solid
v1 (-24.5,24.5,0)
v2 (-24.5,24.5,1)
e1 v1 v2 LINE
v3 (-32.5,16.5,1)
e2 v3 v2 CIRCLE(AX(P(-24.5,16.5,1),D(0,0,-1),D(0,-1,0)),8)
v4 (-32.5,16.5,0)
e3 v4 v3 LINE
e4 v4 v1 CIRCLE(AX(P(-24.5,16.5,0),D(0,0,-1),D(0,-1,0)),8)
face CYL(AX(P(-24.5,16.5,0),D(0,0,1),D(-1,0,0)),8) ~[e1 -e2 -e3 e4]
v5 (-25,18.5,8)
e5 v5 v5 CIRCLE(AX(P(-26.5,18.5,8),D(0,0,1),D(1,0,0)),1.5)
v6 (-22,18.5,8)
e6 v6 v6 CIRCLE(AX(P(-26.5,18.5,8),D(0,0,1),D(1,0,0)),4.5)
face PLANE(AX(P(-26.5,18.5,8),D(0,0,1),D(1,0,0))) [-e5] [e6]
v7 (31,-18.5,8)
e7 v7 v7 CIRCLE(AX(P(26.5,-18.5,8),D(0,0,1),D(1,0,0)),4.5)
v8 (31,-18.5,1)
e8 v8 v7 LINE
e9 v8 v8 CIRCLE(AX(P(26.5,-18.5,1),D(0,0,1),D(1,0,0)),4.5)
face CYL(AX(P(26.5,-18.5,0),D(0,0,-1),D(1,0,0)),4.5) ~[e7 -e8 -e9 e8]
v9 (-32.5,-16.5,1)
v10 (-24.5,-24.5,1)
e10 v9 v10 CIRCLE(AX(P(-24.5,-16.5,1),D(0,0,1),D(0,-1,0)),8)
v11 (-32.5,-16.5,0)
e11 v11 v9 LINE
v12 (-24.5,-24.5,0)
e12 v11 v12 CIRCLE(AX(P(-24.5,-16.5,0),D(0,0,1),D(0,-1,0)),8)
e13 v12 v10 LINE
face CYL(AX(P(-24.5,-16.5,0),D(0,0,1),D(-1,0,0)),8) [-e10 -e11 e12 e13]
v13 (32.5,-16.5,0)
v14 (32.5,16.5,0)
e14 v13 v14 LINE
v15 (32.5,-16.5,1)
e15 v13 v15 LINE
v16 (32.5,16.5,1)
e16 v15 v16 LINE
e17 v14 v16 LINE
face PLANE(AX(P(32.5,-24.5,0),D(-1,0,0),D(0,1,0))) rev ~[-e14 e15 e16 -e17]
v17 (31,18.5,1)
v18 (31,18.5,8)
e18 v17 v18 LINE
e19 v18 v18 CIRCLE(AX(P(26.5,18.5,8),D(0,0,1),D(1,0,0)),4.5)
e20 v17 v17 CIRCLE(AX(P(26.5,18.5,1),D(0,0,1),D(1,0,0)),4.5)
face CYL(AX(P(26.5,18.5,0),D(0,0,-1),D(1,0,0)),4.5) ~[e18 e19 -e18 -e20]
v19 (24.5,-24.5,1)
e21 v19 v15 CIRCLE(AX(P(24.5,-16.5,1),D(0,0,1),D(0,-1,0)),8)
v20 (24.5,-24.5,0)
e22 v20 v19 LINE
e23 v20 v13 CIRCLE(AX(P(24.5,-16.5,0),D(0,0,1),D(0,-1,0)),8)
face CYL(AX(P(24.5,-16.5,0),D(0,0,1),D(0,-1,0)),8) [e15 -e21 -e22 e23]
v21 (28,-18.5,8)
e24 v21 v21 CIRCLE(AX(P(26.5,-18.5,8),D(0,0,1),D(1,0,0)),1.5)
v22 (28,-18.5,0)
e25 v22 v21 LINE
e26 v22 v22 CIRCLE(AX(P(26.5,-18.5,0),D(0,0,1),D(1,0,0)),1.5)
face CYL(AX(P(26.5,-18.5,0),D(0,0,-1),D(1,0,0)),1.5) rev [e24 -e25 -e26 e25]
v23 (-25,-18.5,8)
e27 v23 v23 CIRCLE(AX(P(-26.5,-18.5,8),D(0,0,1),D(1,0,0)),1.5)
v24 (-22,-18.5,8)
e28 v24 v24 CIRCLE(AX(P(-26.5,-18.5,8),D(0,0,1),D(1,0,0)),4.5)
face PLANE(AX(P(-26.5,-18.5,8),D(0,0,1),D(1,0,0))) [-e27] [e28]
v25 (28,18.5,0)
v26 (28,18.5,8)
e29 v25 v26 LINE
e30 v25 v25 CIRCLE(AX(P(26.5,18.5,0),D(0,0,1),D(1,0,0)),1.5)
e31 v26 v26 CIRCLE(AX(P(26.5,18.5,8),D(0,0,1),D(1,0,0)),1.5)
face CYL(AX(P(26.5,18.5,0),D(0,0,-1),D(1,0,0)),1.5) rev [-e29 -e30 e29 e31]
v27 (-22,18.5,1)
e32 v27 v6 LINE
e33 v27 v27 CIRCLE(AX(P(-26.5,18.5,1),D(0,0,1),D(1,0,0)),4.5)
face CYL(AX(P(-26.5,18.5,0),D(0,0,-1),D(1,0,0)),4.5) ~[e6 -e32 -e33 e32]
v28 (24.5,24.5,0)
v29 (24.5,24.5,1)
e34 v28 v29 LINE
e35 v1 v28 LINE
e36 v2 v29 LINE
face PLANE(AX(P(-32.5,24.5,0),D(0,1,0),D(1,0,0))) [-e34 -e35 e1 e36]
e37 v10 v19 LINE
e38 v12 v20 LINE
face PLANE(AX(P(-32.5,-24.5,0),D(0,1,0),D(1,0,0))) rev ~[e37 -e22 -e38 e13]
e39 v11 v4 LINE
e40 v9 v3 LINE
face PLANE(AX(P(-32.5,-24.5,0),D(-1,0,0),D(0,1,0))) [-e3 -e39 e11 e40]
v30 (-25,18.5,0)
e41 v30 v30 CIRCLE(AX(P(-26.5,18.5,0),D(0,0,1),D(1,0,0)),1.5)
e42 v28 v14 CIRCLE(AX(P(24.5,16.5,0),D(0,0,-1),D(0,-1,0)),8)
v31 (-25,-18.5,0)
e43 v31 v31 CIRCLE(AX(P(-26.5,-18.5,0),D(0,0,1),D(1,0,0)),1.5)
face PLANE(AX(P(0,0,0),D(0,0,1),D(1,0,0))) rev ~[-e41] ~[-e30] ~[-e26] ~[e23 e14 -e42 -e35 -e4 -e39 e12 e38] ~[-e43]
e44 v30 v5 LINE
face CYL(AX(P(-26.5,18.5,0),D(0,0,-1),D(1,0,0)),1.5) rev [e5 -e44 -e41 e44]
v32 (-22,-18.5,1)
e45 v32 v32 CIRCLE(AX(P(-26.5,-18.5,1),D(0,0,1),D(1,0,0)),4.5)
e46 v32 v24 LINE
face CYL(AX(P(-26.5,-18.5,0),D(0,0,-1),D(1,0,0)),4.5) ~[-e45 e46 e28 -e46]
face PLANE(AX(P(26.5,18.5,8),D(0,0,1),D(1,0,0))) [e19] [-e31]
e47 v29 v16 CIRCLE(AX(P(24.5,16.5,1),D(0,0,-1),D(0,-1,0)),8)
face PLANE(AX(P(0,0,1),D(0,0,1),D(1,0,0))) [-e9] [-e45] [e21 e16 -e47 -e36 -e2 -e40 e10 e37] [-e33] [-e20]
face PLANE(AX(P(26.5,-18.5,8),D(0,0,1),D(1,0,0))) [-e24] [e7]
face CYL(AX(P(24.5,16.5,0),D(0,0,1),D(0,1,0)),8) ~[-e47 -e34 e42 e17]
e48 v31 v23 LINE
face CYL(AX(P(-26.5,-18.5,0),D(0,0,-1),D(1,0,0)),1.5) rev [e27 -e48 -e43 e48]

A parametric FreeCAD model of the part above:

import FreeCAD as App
import Part
import Sketcher
Q = App.Units.Quantity


def edges_at(feature, points):
    """Names of the edges that pass closest to the given points."""
    edges = feature.Shape.Edges
    near = lambda p: min(range(len(edges)), key=lambda i: edges[i].distToShape(Part.Vertex(*p))[0])
    return sorted({f"Edge{near(p) + 1}" for p in points})

doc = App.newDocument("Part")
body = doc.addObject("PartDesign::Body", "Body")

# Sketch on XY plane
sketch1 = doc.addObject("Sketcher::SketchObject", "Sketch")
body.addObject(sketch1)
sketch1.AttachmentSupport = (doc.XY_Plane, [""])
sketch1.MapMode = "FlatFace"
sketch1.addGeometry(Part.LineSegment(App.Vector(-32.5, 24.5, 0), App.Vector(-32.5, -24.5, 0)), False)
sketch1.addGeometry(Part.LineSegment(App.Vector(-32.5, -24.5, 0), App.Vector(32.5, -24.5, 0)), False)
sketch1.addGeometry(Part.LineSegment(App.Vector(32.5, -24.5, 0), App.Vector(32.5, 24.5, 0)), False)
sketch1.addGeometry(Part.LineSegment(App.Vector(32.5, 24.5, 0), App.Vector(-32.5, 24.5, 0)), False)
sketch1.addGeometry(Part.Circle(App.Vector(-26.5, -18.5, 0), App.Vector(0, 0, 1), 4.5), False)
sketch1.addGeometry(Part.Circle(App.Vector(26.5, -18.5, 0), App.Vector(0, 0, 1), 4.5), False)
sketch1.addGeometry(Part.Circle(App.Vector(-26.5, 18.5, 0), App.Vector(0, 0, 1), 4.5), False)
sketch1.addGeometry(Part.Circle(App.Vector(26.5, 18.5, 0), App.Vector(0, 0, 1), 4.5), False)
sketch1.addConstraint(Sketcher.Constraint("Coincident", 0, 2, 1, 1))
sketch1.addConstraint(Sketcher.Constraint("Coincident", 1, 2, 2, 1))
sketch1.addConstraint(Sketcher.Constraint("Coincident", 2, 2, 3, 1))
sketch1.addConstraint(Sketcher.Constraint("Coincident", 3, 2, 0, 1))
sketch1.addConstraint(Sketcher.Constraint("Vertical", 0))
sketch1.addConstraint(Sketcher.Constraint("Horizontal", 1))
sketch1.addConstraint(Sketcher.Constraint("Vertical", 2))
sketch1.addConstraint(Sketcher.Constraint("Horizontal", 3))
sketch1.addConstraint(Sketcher.Constraint("Equal", 4, 5))
sketch1.addConstraint(Sketcher.Constraint("Equal", 5, 6))
sketch1.addConstraint(Sketcher.Constraint("Equal", 6, 7))
sketch1.addConstraint(Sketcher.Constraint("Symmetric", 5, 3, 6, 3, -1, 1))
sketch1.addConstraint(Sketcher.Constraint("Symmetric", 4, 3, 7, 3, -1, 1))
sketch1.addConstraint(Sketcher.Constraint("Symmetric", 0, 2, 2, 2, -1, 1))
sketch1.addConstraint(Sketcher.Constraint("Symmetric", 4, 3, 5, 3, -2))
sketch1.addConstraint(Sketcher.Constraint("Diameter", 4, Q("9 mm")))
sketch1.addConstraint(Sketcher.Constraint("DistanceX", 1, 1, 1, 2, Q("65 mm")))
sketch1.addConstraint(Sketcher.Constraint("DistanceY", 0, 2, 0, 1, Q("49 mm")))
sketch1.addConstraint(Sketcher.Constraint("DistanceX", 4, 3, 5, 3, Q("53 mm")))
sketch1.addConstraint(Sketcher.Constraint("DistanceY", 4, 3, 6, 3, Q("37 mm")))
pad1 = doc.addObject("PartDesign::Pad", "Pad")
body.addObject(pad1)
pad1.Profile = sketch1
pad1.Length = 1

# Sketch on XY plane
sketch2 = doc.addObject("Sketcher::SketchObject", "Sketch001")
body.addObject(sketch2)
sketch2.AttachmentSupport = (doc.XY_Plane, [""])
sketch2.MapMode = "FlatFace"
sketch2.addGeometry(Part.Circle(App.Vector(26.5, 18.5, 0), App.Vector(0, 0, 1), 4.5), False)
sketch2.addGeometry(Part.Circle(App.Vector(26.5, 18.5, 0), App.Vector(0, 0, 1), 1.5), False)
sketch2.addGeometry(Part.Circle(App.Vector(-26.5, -18.5, 0), App.Vector(0, 0, 1), 4.5), False)
sketch2.addGeometry(Part.Circle(App.Vector(-26.5, -18.5, 0), App.Vector(0, 0, 1), 1.5), False)
sketch2.addGeometry(Part.Circle(App.Vector(-26.5, 18.5, 0), App.Vector(0, 0, 1), 4.5), False)
sketch2.addGeometry(Part.Circle(App.Vector(-26.5, 18.5, 0), App.Vector(0, 0, 1), 1.5), False)
sketch2.addGeometry(Part.Circle(App.Vector(26.5, -18.5, 0), App.Vector(0, 0, 1), 4.5), False)
sketch2.addGeometry(Part.Circle(App.Vector(26.5, -18.5, 0), App.Vector(0, 0, 1), 1.5), False)
sketch2.addConstraint(Sketcher.Constraint("Coincident", 1, 3, 0, 3))
sketch2.addConstraint(Sketcher.Constraint("Coincident", 3, 3, 2, 3))
sketch2.addConstraint(Sketcher.Constraint("Coincident", 5, 3, 4, 3))
sketch2.addConstraint(Sketcher.Constraint("Coincident", 7, 3, 6, 3))
sketch2.addConstraint(Sketcher.Constraint("Equal", 0, 2))
sketch2.addConstraint(Sketcher.Constraint("Equal", 1, 3))
sketch2.addConstraint(Sketcher.Constraint("Equal", 2, 4))
sketch2.addConstraint(Sketcher.Constraint("Equal", 3, 5))
sketch2.addConstraint(Sketcher.Constraint("Equal", 4, 6))
sketch2.addConstraint(Sketcher.Constraint("Equal", 5, 7))
sketch2.addConstraint(Sketcher.Constraint("Symmetric", 0, 3, 2, 3, -1, 1))
sketch2.addConstraint(Sketcher.Constraint("Symmetric", 4, 3, 6, 3, -1, 1))
sketch2.addConstraint(Sketcher.Constraint("Symmetric", 0, 3, 4, 3, -2))
sketch2.addConstraint(Sketcher.Constraint("Diameter", 0, Q("9 mm")))
sketch2.addConstraint(Sketcher.Constraint("Diameter", 1, Q("3 mm")))
sketch2.addConstraint(Sketcher.Constraint("DistanceX", 2, 3, 0, 3, Q("53 mm")))
sketch2.addConstraint(Sketcher.Constraint("DistanceY", 2, 3, 0, 3, Q("37 mm")))
pad2 = doc.addObject("PartDesign::Pad", "Pad001")
body.addObject(pad2)
pad2.Profile = sketch2
pad2.Length = 8
doc.recompute()

fillet = doc.addObject("PartDesign::Fillet", "Fillet")
body.addObject(fillet)
fillet.Base = (pad2, edges_at(pad2, [
    (32.5, -24.5, 0.5),
    (32.5, 24.5, 0.5),
    (-32.5, -24.5, 0.5),
    (-32.5, 24.5, 0.5),
]))
fillet.Radius = 8

doc.recompute()
